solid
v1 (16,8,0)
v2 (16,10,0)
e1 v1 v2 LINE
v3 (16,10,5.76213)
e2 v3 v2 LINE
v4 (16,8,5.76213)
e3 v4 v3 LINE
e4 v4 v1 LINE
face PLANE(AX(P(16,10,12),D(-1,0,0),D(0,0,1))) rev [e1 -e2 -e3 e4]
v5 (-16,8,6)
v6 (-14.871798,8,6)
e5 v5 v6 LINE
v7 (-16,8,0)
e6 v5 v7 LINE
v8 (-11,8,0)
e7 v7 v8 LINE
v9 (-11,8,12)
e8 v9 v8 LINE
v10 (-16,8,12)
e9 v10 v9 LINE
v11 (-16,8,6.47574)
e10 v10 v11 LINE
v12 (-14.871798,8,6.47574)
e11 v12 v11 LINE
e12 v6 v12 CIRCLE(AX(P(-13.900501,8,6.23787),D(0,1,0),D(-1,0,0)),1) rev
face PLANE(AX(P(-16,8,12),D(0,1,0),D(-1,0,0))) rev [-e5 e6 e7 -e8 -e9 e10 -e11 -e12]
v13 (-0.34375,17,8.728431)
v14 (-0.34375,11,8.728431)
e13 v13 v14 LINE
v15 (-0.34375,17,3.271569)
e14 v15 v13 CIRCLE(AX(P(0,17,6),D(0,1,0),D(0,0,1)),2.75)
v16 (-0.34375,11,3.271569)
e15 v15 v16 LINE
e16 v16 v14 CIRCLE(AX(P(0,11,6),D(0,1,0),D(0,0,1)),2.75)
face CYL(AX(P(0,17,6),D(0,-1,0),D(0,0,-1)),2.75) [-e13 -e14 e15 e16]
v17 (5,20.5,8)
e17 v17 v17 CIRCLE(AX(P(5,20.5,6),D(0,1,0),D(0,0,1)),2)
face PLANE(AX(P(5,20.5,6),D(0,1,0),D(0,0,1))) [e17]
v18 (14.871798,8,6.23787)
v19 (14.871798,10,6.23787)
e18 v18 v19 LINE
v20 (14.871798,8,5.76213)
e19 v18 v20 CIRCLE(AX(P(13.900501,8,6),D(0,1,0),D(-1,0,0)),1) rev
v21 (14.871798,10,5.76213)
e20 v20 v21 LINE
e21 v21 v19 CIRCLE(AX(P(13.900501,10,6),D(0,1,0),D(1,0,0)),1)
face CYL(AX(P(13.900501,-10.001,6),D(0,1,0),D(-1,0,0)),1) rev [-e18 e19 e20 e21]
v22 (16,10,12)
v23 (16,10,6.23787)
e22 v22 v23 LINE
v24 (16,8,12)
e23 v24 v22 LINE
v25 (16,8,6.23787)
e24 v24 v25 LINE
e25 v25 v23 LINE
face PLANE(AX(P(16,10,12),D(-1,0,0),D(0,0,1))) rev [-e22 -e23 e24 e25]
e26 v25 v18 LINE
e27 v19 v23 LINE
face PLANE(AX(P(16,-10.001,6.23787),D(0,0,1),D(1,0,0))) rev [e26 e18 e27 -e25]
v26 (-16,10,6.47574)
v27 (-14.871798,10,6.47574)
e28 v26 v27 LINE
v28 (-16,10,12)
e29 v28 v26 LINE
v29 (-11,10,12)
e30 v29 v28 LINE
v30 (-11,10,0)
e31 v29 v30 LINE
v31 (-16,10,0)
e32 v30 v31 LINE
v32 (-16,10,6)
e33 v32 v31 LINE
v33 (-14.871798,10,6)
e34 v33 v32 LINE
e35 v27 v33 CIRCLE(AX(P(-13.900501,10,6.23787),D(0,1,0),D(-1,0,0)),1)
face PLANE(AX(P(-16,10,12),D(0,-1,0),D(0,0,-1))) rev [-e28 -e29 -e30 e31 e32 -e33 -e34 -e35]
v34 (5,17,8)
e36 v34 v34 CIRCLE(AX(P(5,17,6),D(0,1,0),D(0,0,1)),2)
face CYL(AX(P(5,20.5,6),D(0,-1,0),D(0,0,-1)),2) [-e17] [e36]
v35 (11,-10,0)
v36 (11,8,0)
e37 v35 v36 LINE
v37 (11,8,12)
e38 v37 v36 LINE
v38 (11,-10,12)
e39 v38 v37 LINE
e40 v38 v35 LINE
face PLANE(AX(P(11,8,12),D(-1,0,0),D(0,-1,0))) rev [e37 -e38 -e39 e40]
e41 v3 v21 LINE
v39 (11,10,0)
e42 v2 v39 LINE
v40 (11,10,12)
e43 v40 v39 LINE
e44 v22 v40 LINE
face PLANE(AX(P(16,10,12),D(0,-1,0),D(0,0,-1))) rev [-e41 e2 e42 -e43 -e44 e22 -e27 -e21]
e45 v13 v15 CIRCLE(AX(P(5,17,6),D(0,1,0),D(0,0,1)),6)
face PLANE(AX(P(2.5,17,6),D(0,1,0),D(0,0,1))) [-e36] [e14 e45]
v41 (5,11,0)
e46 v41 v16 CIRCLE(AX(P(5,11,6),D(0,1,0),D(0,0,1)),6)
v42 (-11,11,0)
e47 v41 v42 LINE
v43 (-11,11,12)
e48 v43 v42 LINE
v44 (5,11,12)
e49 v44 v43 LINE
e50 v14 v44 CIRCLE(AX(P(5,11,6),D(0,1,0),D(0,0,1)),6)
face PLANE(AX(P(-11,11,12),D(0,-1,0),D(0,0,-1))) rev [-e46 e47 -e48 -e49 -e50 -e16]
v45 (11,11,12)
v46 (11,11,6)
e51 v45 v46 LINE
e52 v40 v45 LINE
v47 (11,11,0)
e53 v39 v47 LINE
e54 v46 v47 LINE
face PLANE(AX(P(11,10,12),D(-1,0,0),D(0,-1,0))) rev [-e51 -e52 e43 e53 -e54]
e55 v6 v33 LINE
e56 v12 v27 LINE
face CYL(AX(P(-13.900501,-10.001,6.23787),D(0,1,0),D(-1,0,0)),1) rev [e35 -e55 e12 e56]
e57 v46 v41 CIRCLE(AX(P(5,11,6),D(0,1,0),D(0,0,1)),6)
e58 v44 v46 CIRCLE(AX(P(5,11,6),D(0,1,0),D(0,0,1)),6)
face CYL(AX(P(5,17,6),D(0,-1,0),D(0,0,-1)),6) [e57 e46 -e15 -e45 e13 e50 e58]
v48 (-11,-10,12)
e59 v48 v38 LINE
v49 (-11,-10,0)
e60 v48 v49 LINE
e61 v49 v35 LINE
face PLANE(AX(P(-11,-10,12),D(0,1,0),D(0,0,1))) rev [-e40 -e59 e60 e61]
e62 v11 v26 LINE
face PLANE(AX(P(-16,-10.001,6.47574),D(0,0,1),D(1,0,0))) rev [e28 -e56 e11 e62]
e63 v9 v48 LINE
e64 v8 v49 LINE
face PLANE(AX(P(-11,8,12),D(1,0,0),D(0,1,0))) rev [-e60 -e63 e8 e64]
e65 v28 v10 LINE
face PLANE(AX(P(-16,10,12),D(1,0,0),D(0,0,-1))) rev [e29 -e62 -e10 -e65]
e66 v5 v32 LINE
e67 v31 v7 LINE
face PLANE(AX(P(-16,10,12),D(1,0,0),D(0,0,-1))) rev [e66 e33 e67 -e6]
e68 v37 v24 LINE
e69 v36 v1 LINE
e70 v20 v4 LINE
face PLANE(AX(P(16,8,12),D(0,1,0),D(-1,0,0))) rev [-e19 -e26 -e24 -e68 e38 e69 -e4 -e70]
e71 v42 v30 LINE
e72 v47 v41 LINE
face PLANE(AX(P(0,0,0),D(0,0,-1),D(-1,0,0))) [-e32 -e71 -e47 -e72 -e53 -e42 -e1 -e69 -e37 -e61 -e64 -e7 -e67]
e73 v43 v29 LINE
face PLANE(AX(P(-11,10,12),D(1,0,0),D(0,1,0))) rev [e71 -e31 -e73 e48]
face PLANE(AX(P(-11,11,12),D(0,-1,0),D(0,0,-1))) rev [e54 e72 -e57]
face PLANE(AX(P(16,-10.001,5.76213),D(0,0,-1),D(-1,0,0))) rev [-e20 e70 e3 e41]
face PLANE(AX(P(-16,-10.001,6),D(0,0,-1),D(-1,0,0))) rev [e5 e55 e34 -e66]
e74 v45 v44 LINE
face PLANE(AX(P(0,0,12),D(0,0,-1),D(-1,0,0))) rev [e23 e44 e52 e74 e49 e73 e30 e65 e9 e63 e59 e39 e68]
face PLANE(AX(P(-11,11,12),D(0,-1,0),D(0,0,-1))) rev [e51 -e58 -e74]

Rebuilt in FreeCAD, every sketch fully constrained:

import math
import FreeCAD as App
import Part
import Sketcher

V = App.Vector
Q = App.Units.Quantity

doc = App.newDocument("Part")
params = doc.addObject("Spreadsheet::Sheet", "Params")
for row, (alias, value) in enumerate([
    ("sketch1_width", "5 mm"),
    ("sketch1_width2", "22 mm"),
    ("sketch1_height", "2 mm"),
    ("sketch1_height2", "18 mm"),
    ("sketch1_height3", "1 mm"),
    ("pad1_length", "12 mm"),
    ("sketch2_radius", "1 mm"),
    ("sketch3_radius", "1 mm"),
    ("sketch4_radius", "6 mm"),
    ("sketch4_radius2", "2.75 mm"),
    ("pad2_length", "6 mm"),
    ("sketch5_diameter", "4 mm"),
    ("pad3_length", "3.5 mm"),
], start=1):
    params.set(f"A{row}", alias)
    params.set(f"B{row}", "=" + value)
    params.setAlias(f"B{row}", alias)

body = doc.addObject("PartDesign::Body", "Body")

# Sketch on XY plane
sketch1 = doc.addObject("Sketcher::SketchObject", "Sketch")
body.addObject(sketch1)
sketch1.AttachmentSupport = (doc.XY_Plane, [""])
sketch1.MapMode = "FlatFace"
sketch1.addGeometry([
    Part.LineSegment(V(-16, 10, 0), V(-16, 8, 0)),  # 0
    Part.LineSegment(V(-16, 8, 0), V(-11, 8, 0)),  # 1
    Part.LineSegment(V(-11, 8, 0), V(-11, -10, 0)),  # 2
    Part.LineSegment(V(-11, -10, 0), V(11, -10, 0)),  # 3
    Part.LineSegment(V(11, -10, 0), V(11, 8, 0)),  # 4
    Part.LineSegment(V(11, 8, 0), V(16, 8, 0)),  # 5
    Part.LineSegment(V(16, 8, 0), V(16, 10, 0)),  # 6
    Part.LineSegment(V(16, 10, 0), V(11, 10, 0)),  # 7
    Part.LineSegment(V(11, 10, 0), V(11, 11, 0)),  # 8
    Part.LineSegment(V(11, 11, 0), V(-11, 11, 0)),  # 9
    Part.LineSegment(V(-11, 11, 0), V(-11, 10, 0)),  # 10
    Part.LineSegment(V(-11, 10, 0), V(-16, 10, 0)),  # 11
], False)
sketch1.addConstraint([
    Sketcher.Constraint("Coincident", 0, 2, 1, 1),
    Sketcher.Constraint("Coincident", 1, 2, 2, 1),
    Sketcher.Constraint("Coincident", 2, 2, 3, 1),
    Sketcher.Constraint("Coincident", 3, 2, 4, 1),
    Sketcher.Constraint("Coincident", 4, 2, 5, 1),
    Sketcher.Constraint("Coincident", 5, 2, 6, 1),
    Sketcher.Constraint("Coincident", 6, 2, 7, 1),
    Sketcher.Constraint("Coincident", 7, 2, 8, 1),
    Sketcher.Constraint("Coincident", 8, 2, 9, 1),
    Sketcher.Constraint("Coincident", 9, 2, 10, 1),
    Sketcher.Constraint("Coincident", 10, 2, 11, 1),
    Sketcher.Constraint("Coincident", 11, 2, 0, 1),
    Sketcher.Constraint("Vertical", 0),
    Sketcher.Constraint("Horizontal", 1),
    Sketcher.Constraint("Vertical", 2),
    Sketcher.Constraint("Horizontal", 3),
    Sketcher.Constraint("Vertical", 4),
    Sketcher.Constraint("Horizontal", 5),
    Sketcher.Constraint("Vertical", 6),
    Sketcher.Constraint("Horizontal", 7),
    Sketcher.Constraint("Vertical", 8),
    Sketcher.Constraint("Horizontal", 9),
    Sketcher.Constraint("Vertical", 10),
    Sketcher.Constraint("Horizontal", 11),
    Sketcher.Constraint("Symmetric", 2, 2, 7, 2, -1, 1),
    Sketcher.Constraint("Symmetric", 3, 2, 10, 2, -1, 1),
    Sketcher.Constraint("Symmetric", 1, 2, 4, 2, -2),
    Sketcher.Constraint("Equal", 1, 5),
    Sketcher.Constraint("DistanceX", 1, 1, 1, 2, Q("5 mm")),
    Sketcher.Constraint("DistanceX", 3, 1, 3, 2, Q("22 mm")),
    Sketcher.Constraint("DistanceY", 0, 2, 0, 1, Q("2 mm")),
    Sketcher.Constraint("DistanceY", 2, 2, 2, 1, Q("18 mm")),
    Sketcher.Constraint("DistanceY", 8, 1, 8, 2, Q("1 mm")),
])
sketch1.setExpression("Constraints[28]", "Params.sketch1_width")
sketch1.setExpression("Constraints[29]", "Params.sketch1_width2")
sketch1.setExpression("Constraints[30]", "Params.sketch1_height")
sketch1.setExpression("Constraints[31]", "Params.sketch1_height2")
sketch1.setExpression("Constraints[32]", "Params.sketch1_height3")
pad1 = doc.addObject("PartDesign::Pad", "Pad")
body.addObject(pad1)
pad1.Profile = sketch1
pad1.setExpression("Length", "Params.pad1_length")

# Sketch on XZ plane
sketch2 = doc.addObject("Sketcher::SketchObject", "Sketch001")
body.addObject(sketch2)
sketch2.AttachmentSupport = (doc.XZ_Plane, [""])
sketch2.MapMode = "FlatFace"
sketch2.AttachmentOffset = App.Placement(V(0, 0, -10), App.Rotation())
sketch2.addGeometry([
    Part.LineSegment(V(-14.87, 6, 0), V(-16, 6, 0)),
    Part.LineSegment(V(-16, 6, 0), V(-16, 6.48, 0)),
    Part.LineSegment(V(-16, 6.48, 0), V(-14.87, 6.48, 0)),
    Part.ArcOfCircle(Part.Circle(V(-13.9, 6.24, 0), V(0, 0, 1), 1), math.radians(-166), math.radians(166)),
], False)
sketch2.addConstraint([
    Sketcher.Constraint("Coincident", 0, 2, 1, 1),
    Sketcher.Constraint("Coincident", 1, 2, 2, 1),
    Sketcher.Constraint("Coincident", 2, 2, 3, 2),
    Sketcher.Constraint("Coincident", 3, 1, 0, 1),
    Sketcher.Constraint("Horizontal", 0),
    Sketcher.Constraint("Vertical", 1),
    Sketcher.Constraint("Horizontal", 2),
    Sketcher.Constraint("Vertical", 2, 2, 3, 1),
    Sketcher.Constraint("Radius", 3, Q("1 mm")),
    Sketcher.Constraint("DistanceX", 0, 2, -1, 1, Q("16 mm")),
    Sketcher.Constraint("DistanceY", -1, 1, 0, 2, Q("6 mm")),
    Sketcher.Constraint("DistanceX", 0, 2, 0, 1, Q("1.128202 mm")),
    Sketcher.Constraint("DistanceY", 1, 1, 1, 2, Q("0.47574 mm")),
])
sketch2.setExpression("Constraints[8]", "Params.sketch2_radius")
pocket1 = doc.addObject("PartDesign::Pocket", "Pocket")
body.addObject(pocket1)
pocket1.Profile = sketch2
pocket1.Type = "UpToFirst"
pocket1.Reversed = True

# Sketch on XZ plane
sketch3 = doc.addObject("Sketcher::SketchObject", "Sketch002")
body.addObject(sketch3)
sketch3.AttachmentSupport = (doc.XZ_Plane, [""])
sketch3.MapMode = "FlatFace"
sketch3.AttachmentOffset = App.Placement(V(0, 0, -10), App.Rotation())
sketch3.addGeometry([
    Part.LineSegment(V(14.87, 6.24, 0), V(16, 6.24, 0)),
    Part.LineSegment(V(16, 6.24, 0), V(16, 5.76, 0)),
    Part.LineSegment(V(16, 5.76, 0), V(14.87, 5.76, 0)),
    Part.ArcOfCircle(Part.Circle(V(13.9, 6, 0), V(0, 0, 1), 1), math.radians(14), math.radians(346)),
], False)
sketch3.addConstraint([
    Sketcher.Constraint("Coincident", 0, 2, 1, 1),
    Sketcher.Constraint("Coincident", 1, 2, 2, 1),
    Sketcher.Constraint("Coincident", 2, 2, 3, 2),
    Sketcher.Constraint("Coincident", 3, 1, 0, 1),
    Sketcher.Constraint("Horizontal", 0),
    Sketcher.Constraint("Vertical", 1),
    Sketcher.Constraint("Horizontal", 2),
    Sketcher.Constraint("Vertical", 2, 2, 3, 1),
    Sketcher.Constraint("Radius", 3, Q("1 mm")),
    Sketcher.Constraint("DistanceY", -1, 1, 3, 3, Q("6 mm")),
    Sketcher.Constraint("DistanceX", -1, 1, 0, 2, Q("16 mm")),
    Sketcher.Constraint("DistanceX", 0, 1, 0, 2, Q("1.128202 mm")),
    Sketcher.Constraint("DistanceY", 1, 2, 1, 1, Q("0.47574 mm")),
])
sketch3.setExpression("Constraints[8]", "Params.sketch3_radius")
pocket2 = doc.addObject("PartDesign::Pocket", "Pocket001")
body.addObject(pocket2)
pocket2.Profile = sketch3
pocket2.Type = "UpToFirst"
pocket2.Reversed = True

# Sketch on XZ plane
sketch4 = doc.addObject("Sketcher::SketchObject", "Sketch003")
body.addObject(sketch4)
sketch4.AttachmentSupport = (doc.XZ_Plane, [""])
sketch4.MapMode = "FlatFace"
sketch4.AttachmentOffset = App.Placement(V(0, 0, -11), App.Rotation())
sketch4.addGeometry([
    Part.ArcOfCircle(Part.Circle(V(5, 6, 0), V(0, 0, 1), 6), math.radians(-153), math.radians(153)),
    Part.ArcOfCircle(Part.Circle(V(0, 6, 0), V(0, 0, 1), 2.8), math.radians(97), math.radians(263)),
], False)
sketch4.addConstraint([
    Sketcher.Constraint("Coincident", 0, 1, 1, 2),
    Sketcher.Constraint("Coincident", 1, 1, 0, 2),
    Sketcher.Constraint("PointOnObject", 1, 3, -2),
    Sketcher.Constraint("Horizontal", 0, 3, 1, 3),
    Sketcher.Constraint("Radius", 0, Q("6 mm")),
    Sketcher.Constraint("Radius", 1, Q("2.75 mm")),
    Sketcher.Constraint("DistanceX", -1, 1, 0, 3, Q("5 mm")),
    Sketcher.Constraint("DistanceY", -1, 1, 0, 3, Q("6 mm")),
])
sketch4.setExpression("Constraints[4]", "Params.sketch4_radius")
sketch4.setExpression("Constraints[5]", "Params.sketch4_radius2")
pad2 = doc.addObject("PartDesign::Pad", "Pad001")
body.addObject(pad2)
pad2.Profile = sketch4
pad2.setExpression("Length", "Params.pad2_length")
pad2.Reversed = True

# Sketch on XZ plane
sketch5 = doc.addObject("Sketcher::SketchObject", "Sketch004")
body.addObject(sketch5)
sketch5.AttachmentSupport = (doc.XZ_Plane, [""])
sketch5.MapMode = "FlatFace"
sketch5.AttachmentOffset = App.Placement(V(0, 0, -17), App.Rotation())
sketch5.addGeometry(Part.Circle(V(5, 6, 0), V(0, 0, 1), 2), False)
sketch5.addConstraint([
    Sketcher.Constraint("Diameter", 0, Q("4 mm")),
    Sketcher.Constraint("DistanceX", -1, 1, 0, 3, Q("5 mm")),
    Sketcher.Constraint("DistanceY", -1, 1, 0, 3, Q("6 mm")),
])
sketch5.setExpression("Constraints[0]", "Params.sketch5_diameter")
pad3 = doc.addObject("PartDesign::Pad", "Pad002")
body.addObject(pad3)
pad3.Profile = sketch5
pad3.setExpression("Length", "Params.pad3_length")
pad3.Reversed = True

doc.recompute()
